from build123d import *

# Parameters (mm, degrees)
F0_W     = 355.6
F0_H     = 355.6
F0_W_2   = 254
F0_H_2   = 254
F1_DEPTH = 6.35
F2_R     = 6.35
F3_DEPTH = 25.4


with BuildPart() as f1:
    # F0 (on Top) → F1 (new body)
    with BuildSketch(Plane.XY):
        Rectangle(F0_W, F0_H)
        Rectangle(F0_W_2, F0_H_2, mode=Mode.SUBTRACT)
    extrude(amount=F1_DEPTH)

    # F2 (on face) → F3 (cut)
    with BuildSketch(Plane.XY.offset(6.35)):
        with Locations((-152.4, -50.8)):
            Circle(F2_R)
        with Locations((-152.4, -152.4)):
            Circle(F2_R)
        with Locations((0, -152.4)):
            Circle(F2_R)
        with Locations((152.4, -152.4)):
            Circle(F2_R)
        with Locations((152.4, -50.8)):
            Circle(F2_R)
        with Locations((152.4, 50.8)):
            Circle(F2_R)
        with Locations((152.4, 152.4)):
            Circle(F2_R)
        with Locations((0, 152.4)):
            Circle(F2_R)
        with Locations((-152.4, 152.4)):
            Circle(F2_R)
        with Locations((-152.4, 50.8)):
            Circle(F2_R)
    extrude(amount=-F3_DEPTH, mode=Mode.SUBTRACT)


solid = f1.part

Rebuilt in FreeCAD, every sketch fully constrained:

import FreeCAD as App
import Part
import Sketcher
Q = App.Units.Quantity

doc = App.newDocument("Part")
body = doc.addObject("PartDesign::Body", "Body")

# Sketch on XY plane
sketch1 = doc.addObject("Sketcher::SketchObject", "Sketch")
body.addObject(sketch1)
sketch1.AttachmentSupport = (doc.XY_Plane, [""])
sketch1.MapMode = "FlatFace"
sketch1.addGeometry(Part.LineSegment(App.Vector(-178, 178, 0), App.Vector(-178, -178, 0)), False)
sketch1.addGeometry(Part.LineSegment(App.Vector(-178, -178, 0), App.Vector(178, -178, 0)), False)
sketch1.addGeometry(Part.LineSegment(App.Vector(178, -178, 0), App.Vector(178, 178, 0)), False)
sketch1.addGeometry(Part.LineSegment(App.Vector(178, 178, 0), App.Vector(-178, 178, 0)), False)
sketch1.addGeometry(Part.LineSegment(App.Vector(127, -127, 0), App.Vector(-127, -127, 0)), False)
sketch1.addGeometry(Part.LineSegment(App.Vector(-127, -127, 0), App.Vector(-127, 127, 0)), False)
sketch1.addGeometry(Part.LineSegment(App.Vector(-127, 127, 0), App.Vector(127, 127, 0)), False)
sketch1.addGeometry(Part.LineSegment(App.Vector(127, 127, 0), App.Vector(127, -127, 0)), False)
sketch1.addConstraint(Sketcher.Constraint("Coincident", 0, 2, 1, 1))
sketch1.addConstraint(Sketcher.Constraint("Coincident", 1, 2, 2, 1))
sketch1.addConstraint(Sketcher.Constraint("Coincident", 2, 2, 3, 1))
sketch1.addConstraint(Sketcher.Constraint("Coincident", 3, 2, 0, 1))
sketch1.addConstraint(Sketcher.Constraint("Coincident", 4, 2, 5, 1))
sketch1.addConstraint(Sketcher.Constraint("Coincident", 5, 2, 6, 1))
sketch1.addConstraint(Sketcher.Constraint("Coincident", 6, 2, 7, 1))
sketch1.addConstraint(Sketcher.Constraint("Coincident", 7, 2, 4, 1))
sketch1.addConstraint(Sketcher.Constraint("Vertical", 0))
sketch1.addConstraint(Sketcher.Constraint("Horizontal", 1))
sketch1.addConstraint(Sketcher.Constraint("Vertical", 2))
sketch1.addConstraint(Sketcher.Constraint("Horizontal", 3))
sketch1.addConstraint(Sketcher.Constraint("Horizontal", 4))
sketch1.addConstraint(Sketcher.Constraint("Vertical", 5))
sketch1.addConstraint(Sketcher.Constraint("Horizontal", 6))
sketch1.addConstraint(Sketcher.Constraint("Vertical", 7))
sketch1.addConstraint(Sketcher.Constraint("Symmetric", 0, 2, 2, 2, -1, 1))
sketch1.addConstraint(Sketcher.Constraint("Symmetric", 4, 2, 6, 2, -1, 1))
sketch1.addConstraint(Sketcher.Constraint("Equal", 3, 0))
sketch1.addConstraint(Sketcher.Constraint("Equal", 6, 5))
sketch1.addConstraint(Sketcher.Constraint("DistanceX", 1, 1, 1, 2, Q("14 in")))
sketch1.addConstraint(Sketcher.Constraint("DistanceX", 4, 2, 4, 1, Q("10 in")))
pad1 = doc.addObject("PartDesign::Pad", "Pad")
body.addObject(pad1)
pad1.Profile = sketch1
pad1.Length = Q("0.25 in")

# Sketch on XY plane
sketch2 = doc.addObject("Sketcher::SketchObject", "Sketch001")
body.addObject(sketch2)
sketch2.AttachmentSupport = (doc.XY_Plane, [""])
sketch2.MapMode = "FlatFace"
sketch2.AttachmentOffset = App.Placement(App.Vector(0, 0, 0.25 * 25.4), App.Rotation())
sketch2.addGeometry(Part.Circle(App.Vector(-152, -51, 0), App.Vector(0, 0, 1), 6), False)
sketch2.addGeometry(Part.Circle(App.Vector(-152, -152, 0), App.Vector(0, 0, 1), 6), False)
sketch2.addGeometry(Part.Circle(App.Vector(0, -152, 0), App.Vector(0, 0, 1), 6), False)
sketch2.addGeometry(Part.Circle(App.Vector(152, -152, 0), App.Vector(0, 0, 1), 6), False)
sketch2.addGeometry(Part.Circle(App.Vector(152, -51, 0), App.Vector(0, 0, 1), 6), False)
sketch2.addGeometry(Part.Circle(App.Vector(152, 51, 0), App.Vector(0, 0, 1), 6), False)
sketch2.addGeometry(Part.Circle(App.Vector(152, 152, 0), App.Vector(0, 0, 1), 6), False)
sketch2.addGeometry(Part.Circle(App.Vector(0, 152, 0), App.Vector(0, 0, 1), 6), False)
sketch2.addGeometry(Part.Circle(App.Vector(-152, 152, 0), App.Vector(0, 0, 1), 6), False)
sketch2.addGeometry(Part.Circle(App.Vector(-152, 51, 0), App.Vector(0, 0, 1), 6), False)
sketch2.addConstraint(Sketcher.Constraint("Equal", 0, 1))
sketch2.addConstraint(Sketcher.Constraint("Equal", 1, 2))
sketch2.addConstraint(Sketcher.Constraint("Equal", 2, 3))
sketch2.addConstraint(Sketcher.Constraint("Equal", 3, 4))
sketch2.addConstraint(Sketcher.Constraint("Equal", 4, 5))
sketch2.addConstraint(Sketcher.Constraint("Equal", 5, 6))
sketch2.addConstraint(Sketcher.Constraint("Equal", 6, 7))
sketch2.addConstraint(Sketcher.Constraint("Equal", 7, 8))
sketch2.addConstraint(Sketcher.Constraint("Equal", 8, 9))
sketch2.addConstraint(Sketcher.Constraint("Symmetric", 0, 3, 5, 3, -1, 1))
sketch2.addConstraint(Sketcher.Constraint("Symmetric", 1, 3, 6, 3, -1, 1))
sketch2.addConstraint(Sketcher.Constraint("Symmetric", 2, 3, 7, 3, -1, 1))
sketch2.addConstraint(Sketcher.Constraint("Symmetric", 3, 3, 8, 3, -1, 1))
sketch2.addConstraint(Sketcher.Constraint("Symmetric", 4, 3, 9, 3, -1, 1))
sketch2.addConstraint(Sketcher.Constraint("Symmetric", 1, 3, 3, 3, -2))
sketch2.addConstraint(Sketcher.Constraint("Symmetric", 0, 3, 4, 3, -2))
sketch2.addConstraint(Sketcher.Constraint("PointOnObject", 2, 3, -2))
sketch2.addConstraint(Sketcher.Constraint("Horizontal", 1, 3, 2, 3))
sketch2.addConstraint(Sketcher.Constraint("Vertical", 0, 3, 1, 3))
sketch2.addConstraint(Sketcher.Constraint("Diameter", 0, Q("0.5 in")))
sketch2.addConstraint(Sketcher.Constraint("DistanceX", 0, 3, -1, 1, Q("6 in")))
sketch2.addConstraint(Sketcher.Constraint("DistanceY", 0, 3, -1, 1, Q("2 in")))
sketch2.addConstraint(Sketcher.Constraint("DistanceY", 1, 3, -1, 1, Q("6 in")))
pocket1 = doc.addObject("PartDesign::Pocket", "Pocket")
body.addObject(pocket1)
pocket1.Profile = sketch2
pocket1.Length = Q("1 in")

doc.recompute()
